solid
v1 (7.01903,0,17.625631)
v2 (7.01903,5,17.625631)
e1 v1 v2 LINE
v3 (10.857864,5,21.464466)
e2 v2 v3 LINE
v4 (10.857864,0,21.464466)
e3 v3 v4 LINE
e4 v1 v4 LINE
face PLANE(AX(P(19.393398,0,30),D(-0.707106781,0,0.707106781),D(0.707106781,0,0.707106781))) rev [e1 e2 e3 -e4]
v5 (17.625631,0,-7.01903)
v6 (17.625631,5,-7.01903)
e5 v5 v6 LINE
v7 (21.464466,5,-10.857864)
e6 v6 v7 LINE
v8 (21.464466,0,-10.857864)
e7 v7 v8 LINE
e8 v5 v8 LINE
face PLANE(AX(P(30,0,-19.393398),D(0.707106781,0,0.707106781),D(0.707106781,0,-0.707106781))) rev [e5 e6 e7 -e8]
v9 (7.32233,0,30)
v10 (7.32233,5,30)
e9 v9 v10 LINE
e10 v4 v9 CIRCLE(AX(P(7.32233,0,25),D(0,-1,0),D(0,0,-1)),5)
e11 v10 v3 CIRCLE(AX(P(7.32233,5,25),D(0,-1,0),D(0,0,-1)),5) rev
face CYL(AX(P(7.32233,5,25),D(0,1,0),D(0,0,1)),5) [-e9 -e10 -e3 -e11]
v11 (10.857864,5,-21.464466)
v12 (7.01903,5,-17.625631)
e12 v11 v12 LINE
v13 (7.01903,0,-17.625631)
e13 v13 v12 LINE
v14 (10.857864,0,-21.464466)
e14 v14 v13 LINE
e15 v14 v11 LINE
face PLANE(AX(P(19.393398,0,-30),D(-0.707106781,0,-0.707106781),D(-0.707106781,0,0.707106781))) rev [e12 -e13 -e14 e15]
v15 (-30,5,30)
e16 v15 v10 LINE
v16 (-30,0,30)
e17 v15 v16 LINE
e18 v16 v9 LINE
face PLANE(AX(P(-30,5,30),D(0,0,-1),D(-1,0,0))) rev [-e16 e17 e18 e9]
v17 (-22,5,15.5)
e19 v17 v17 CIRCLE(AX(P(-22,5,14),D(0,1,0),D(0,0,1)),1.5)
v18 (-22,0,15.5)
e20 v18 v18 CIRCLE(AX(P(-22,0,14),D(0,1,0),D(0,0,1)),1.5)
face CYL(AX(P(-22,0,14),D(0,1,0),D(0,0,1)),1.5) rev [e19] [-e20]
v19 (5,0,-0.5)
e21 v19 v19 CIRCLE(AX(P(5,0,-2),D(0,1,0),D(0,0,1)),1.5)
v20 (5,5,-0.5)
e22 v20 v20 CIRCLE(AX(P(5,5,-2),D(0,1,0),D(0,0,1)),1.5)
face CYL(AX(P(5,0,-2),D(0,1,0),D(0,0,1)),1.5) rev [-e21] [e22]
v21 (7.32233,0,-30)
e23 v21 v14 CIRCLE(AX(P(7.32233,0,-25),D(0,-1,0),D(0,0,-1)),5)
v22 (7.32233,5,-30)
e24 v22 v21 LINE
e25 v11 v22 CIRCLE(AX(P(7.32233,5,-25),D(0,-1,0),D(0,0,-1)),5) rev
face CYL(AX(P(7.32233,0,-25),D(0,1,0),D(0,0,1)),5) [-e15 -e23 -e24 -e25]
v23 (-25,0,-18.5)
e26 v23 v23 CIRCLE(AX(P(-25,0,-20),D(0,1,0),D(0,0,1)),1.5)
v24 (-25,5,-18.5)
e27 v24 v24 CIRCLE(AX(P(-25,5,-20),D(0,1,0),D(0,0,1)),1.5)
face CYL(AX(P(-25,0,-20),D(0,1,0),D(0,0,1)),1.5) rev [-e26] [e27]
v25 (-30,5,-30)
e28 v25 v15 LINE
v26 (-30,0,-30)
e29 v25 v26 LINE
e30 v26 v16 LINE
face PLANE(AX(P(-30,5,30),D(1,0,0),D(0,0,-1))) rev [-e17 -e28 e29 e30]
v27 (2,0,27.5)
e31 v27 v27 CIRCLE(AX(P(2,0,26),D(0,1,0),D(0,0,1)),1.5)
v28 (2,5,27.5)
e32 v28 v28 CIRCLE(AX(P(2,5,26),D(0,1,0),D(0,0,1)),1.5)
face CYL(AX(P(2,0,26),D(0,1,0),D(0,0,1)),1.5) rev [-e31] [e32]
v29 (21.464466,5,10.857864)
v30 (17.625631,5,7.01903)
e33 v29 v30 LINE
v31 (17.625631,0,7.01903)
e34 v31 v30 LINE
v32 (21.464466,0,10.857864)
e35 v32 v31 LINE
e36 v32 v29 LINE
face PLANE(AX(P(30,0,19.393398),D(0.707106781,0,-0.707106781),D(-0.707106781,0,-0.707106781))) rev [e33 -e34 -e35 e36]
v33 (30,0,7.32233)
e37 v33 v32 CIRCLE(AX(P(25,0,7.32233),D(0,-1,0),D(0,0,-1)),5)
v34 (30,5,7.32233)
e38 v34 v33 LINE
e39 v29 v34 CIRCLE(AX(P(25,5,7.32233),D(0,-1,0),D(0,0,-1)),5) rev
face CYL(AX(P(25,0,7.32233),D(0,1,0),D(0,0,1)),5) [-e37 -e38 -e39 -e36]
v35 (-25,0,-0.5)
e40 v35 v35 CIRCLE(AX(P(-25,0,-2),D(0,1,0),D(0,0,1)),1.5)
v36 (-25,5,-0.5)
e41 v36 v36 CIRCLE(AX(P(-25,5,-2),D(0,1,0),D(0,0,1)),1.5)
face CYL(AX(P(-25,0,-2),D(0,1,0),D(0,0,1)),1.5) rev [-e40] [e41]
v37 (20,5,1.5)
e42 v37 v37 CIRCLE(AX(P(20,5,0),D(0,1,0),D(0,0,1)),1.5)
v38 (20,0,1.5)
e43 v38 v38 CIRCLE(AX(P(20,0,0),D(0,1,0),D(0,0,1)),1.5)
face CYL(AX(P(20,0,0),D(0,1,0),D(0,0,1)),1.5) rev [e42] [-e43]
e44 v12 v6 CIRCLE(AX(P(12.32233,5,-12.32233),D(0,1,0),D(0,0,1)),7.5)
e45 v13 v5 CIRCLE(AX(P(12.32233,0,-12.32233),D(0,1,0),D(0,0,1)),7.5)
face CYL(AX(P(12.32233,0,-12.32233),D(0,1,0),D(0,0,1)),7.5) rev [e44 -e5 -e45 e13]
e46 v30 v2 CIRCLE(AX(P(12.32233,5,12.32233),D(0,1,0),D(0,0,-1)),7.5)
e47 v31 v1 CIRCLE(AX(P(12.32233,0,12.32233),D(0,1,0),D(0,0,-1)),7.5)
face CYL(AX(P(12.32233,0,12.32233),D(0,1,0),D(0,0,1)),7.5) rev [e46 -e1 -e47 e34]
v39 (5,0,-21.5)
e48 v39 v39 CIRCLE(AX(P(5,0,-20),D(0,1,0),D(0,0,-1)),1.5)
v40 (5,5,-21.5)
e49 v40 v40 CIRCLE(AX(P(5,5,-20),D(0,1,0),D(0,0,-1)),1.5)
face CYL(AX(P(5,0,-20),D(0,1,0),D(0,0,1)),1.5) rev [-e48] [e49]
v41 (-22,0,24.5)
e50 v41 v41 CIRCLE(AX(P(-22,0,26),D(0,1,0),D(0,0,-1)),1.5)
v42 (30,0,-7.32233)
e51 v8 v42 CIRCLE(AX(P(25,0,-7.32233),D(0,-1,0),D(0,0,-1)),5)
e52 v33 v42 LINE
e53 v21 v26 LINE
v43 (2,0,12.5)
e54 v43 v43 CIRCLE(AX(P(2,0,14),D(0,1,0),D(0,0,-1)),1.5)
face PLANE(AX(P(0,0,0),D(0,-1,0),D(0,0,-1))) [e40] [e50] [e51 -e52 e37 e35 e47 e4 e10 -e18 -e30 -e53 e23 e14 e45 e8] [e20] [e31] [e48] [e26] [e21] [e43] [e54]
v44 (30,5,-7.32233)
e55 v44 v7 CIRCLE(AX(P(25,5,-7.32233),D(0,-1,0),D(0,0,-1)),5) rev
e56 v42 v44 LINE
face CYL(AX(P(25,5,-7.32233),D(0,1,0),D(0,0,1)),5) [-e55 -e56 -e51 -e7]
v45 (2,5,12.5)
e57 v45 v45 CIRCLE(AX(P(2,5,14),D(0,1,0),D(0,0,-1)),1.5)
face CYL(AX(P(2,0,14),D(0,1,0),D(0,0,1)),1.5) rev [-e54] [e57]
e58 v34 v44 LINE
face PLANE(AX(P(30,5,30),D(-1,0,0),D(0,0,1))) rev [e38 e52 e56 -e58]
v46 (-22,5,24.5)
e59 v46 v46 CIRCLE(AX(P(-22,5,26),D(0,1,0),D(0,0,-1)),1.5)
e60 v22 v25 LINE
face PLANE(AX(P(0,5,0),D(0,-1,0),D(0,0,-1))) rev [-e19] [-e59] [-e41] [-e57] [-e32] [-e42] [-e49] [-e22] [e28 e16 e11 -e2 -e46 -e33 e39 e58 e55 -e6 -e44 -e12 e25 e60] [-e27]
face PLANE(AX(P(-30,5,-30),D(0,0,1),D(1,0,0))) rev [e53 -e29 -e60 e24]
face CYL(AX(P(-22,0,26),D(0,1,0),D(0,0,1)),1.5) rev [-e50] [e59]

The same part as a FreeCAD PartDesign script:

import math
import FreeCAD as App
import Part
import Sketcher

V = App.Vector


def edges_at(feature, points):
    """Names of the edges that pass closest to the given points."""
    edges = feature.Shape.Edges
    near = lambda p: min(range(len(edges)), key=lambda i: edges[i].distToShape(Part.Vertex(*p))[0])
    return sorted({f"Edge{near(p) + 1}" for p in points})


def add_polygon(sketch, points):
    """Adds a closed chain of lines whose ends are joined by coincident constraints."""
    first, n = sketch.GeometryCount, len(points)
    for a, b in zip(points, points[1:] + points[:1]):
        sketch.addGeometry(Part.LineSegment(App.Vector(*a, 0), App.Vector(*b, 0)), False)
    for i in range(n):
        sketch.addConstraint(Sketcher.Constraint("Coincident", first + i, 2, first + (i + 1) % n, 1))

doc = App.newDocument("Part")
params = doc.addObject("Spreadsheet::Sheet", "Params")
for row, (alias, value) in enumerate([
    ("sketch1_width", "60 mm"),
    ("pad1_length", "5 mm"),
    ("sketch2_radius", "7.5 mm"),
    ("sketch2_length", "17.5 mm"),
    ("fillet_radius", "5 mm"),
    ("sketch3_diameter", "3 mm"),
], start=1):
    params.set(f"A{row}", alias)
    params.set(f"B{row}", "=" + value)
    params.setAlias(f"B{row}", alias)

body = doc.addObject("PartDesign::Body", "Body")

# Sketch on XZ plane
sketch1 = body.newObject("Sketcher::SketchObject", "Sketch")
sketch1.AttachmentSupport = (doc.getObject("XZ_Plane"), [""])
sketch1.MapMode = "FlatFace"
add_polygon(sketch1, [(-30, -30), (-30, 30), (30, 30), (30, -30)])  # lines 0-3
sketch1.addConstraint([
    Sketcher.Constraint("Vertical", 0),
    Sketcher.Constraint("Horizontal", 1),
    Sketcher.Constraint("Vertical", 2),
    Sketcher.Constraint("Horizontal", 3),
    Sketcher.Constraint("Symmetric", 0, 2, 2, 2, -1, 1),
    Sketcher.Constraint("Equal", 3, 0),
    Sketcher.Constraint("DistanceX", 1, 1, 1, 2, 60.0),
])
sketch1.setExpression("Constraints[10]", "Params.sketch1_width")
pad1 = body.newObject("PartDesign::Pad", "Pad")
pad1.Profile = sketch1
pad1.setExpression("Length", "Params.pad1_length")
pad1.Reversed = True

# Sketch on XZ plane
sketch2 = body.newObject("Sketcher::SketchObject", "Sketch001")
sketch2.AttachmentSupport = (doc.getObject("XZ_Plane"), [""])
sketch2.MapMode = "FlatFace"
sketch2.AttachmentOffset = App.Placement(V(0, 0, -5), App.Rotation())
sketch2.addGeometry([
    Part.LineSegment(V(19, -30, 0), V(7, -18, 0)),  # 0
    Part.ArcOfCircle(Part.Circle(V(12, -12, 0), V(0, 0, 1), 8), math.radians(45), math.radians(225)),  # 1
    Part.LineSegment(V(18, -7, 0), V(30, -19, 0)),  # 2
    Part.LineSegment(V(30, -19, 0), V(30, -30, 0)),  # 3
    Part.LineSegment(V(30, -30, 0), V(19, -30, 0)),  # 4
    Part.LineSegment(V(19, 30, 0), V(30, 30, 0)),  # 5
    Part.LineSegment(V(30, 30, 0), V(30, 19, 0)),  # 6
    Part.LineSegment(V(30, 19, 0), V(18, 7, 0)),  # 7
    Part.ArcOfCircle(Part.Circle(V(12, 12, 0), V(0, 0, 1), 8), math.radians(135), math.radians(315)),  # 8
    Part.LineSegment(V(7, 18, 0), V(19, 30, 0)),  # 9
], False)
sketch2.addConstraint([
    Sketcher.Constraint("Tangent", 0, 2, 1, 2),
    Sketcher.Constraint("Tangent", 1, 1, 2, 1),
    Sketcher.Constraint("Coincident", 2, 2, 3, 1),
    Sketcher.Constraint("Coincident", 3, 2, 4, 1),
    Sketcher.Constraint("Coincident", 4, 2, 0, 1),
    Sketcher.Constraint("Coincident", 5, 2, 6, 1),
    Sketcher.Constraint("Coincident", 6, 2, 7, 1),
    Sketcher.Constraint("Tangent", 7, 2, 8, 2),
    Sketcher.Constraint("Tangent", 8, 1, 9, 1),
    Sketcher.Constraint("Coincident", 9, 2, 5, 1),
    Sketcher.Constraint("Vertical", 3),
    Sketcher.Constraint("Horizontal", 4),
    Sketcher.Constraint("Horizontal", 5),
    Sketcher.Constraint("Vertical", 6),
    Sketcher.Constraint("Equal", 1, 8),
    Sketcher.Constraint("Symmetric", 1, 3, 8, 3, -1),
    Sketcher.Constraint("Symmetric", 3, 2, 5, 2, -1),
    Sketcher.Constraint("Parallel", 0, 2),
    Sketcher.Constraint("Perpendicular", 2, 7),
    Sketcher.Constraint("Parallel", 7, 9),
    Sketcher.Constraint("Vertical", 1, 1, 7, 2),
    Sketcher.Constraint("Equal", 5, 3),
    Sketcher.Constraint("Radius", 1, 7.5),
    Sketcher.Constraint("DistanceX", -1, 1, 2, 2, 30.0),
    Sketcher.Constraint("DistanceY", 3, 2, -1, 1, 30.0),
    Sketcher.Constraint("Distance", 0, 17.5),
])
sketch2.setExpression("Constraints[22]", "Params.sketch2_radius")
sketch2.setExpression("Constraints[25]", "Params.sketch2_length")
pocket1 = body.newObject("PartDesign::Pocket", "Pocket")
pocket1.Profile = sketch2
pocket1.Type = "ThroughAll"
pocket1.Reversed = True
doc.recompute()

fillet = body.newObject("PartDesign::Fillet", "Fillet")
fillet.Base = (pocket1, edges_at(pocket1, [
    (30, 2.5, -19.393),
    (19.393, 2.5, -30),
    (19.393, 2.5, 30),
    (30, 2.5, 19.393),
]))
fillet.setExpression("Radius", "Params.fillet_radius")

# Sketch on XZ plane
sketch3 = body.newObject("Sketcher::SketchObject", "Sketch002")
sketch3.AttachmentSupport = (doc.getObject("XZ_Plane"), [""])
sketch3.MapMode = "FlatFace"
sketch3.AttachmentOffset = App.Placement(V(0, 0, -5), App.Rotation())
sketch3.addGeometry([
    Part.Circle(V(20, 0, 0), V(0, 0, 1), 1.5),  # 0
    Part.Circle(V(-22, 14, 0), V(0, 0, 1), 1.5),  # 1
    Part.Circle(V(2, 14, 0), V(0, 0, 1), 1.5),  # 2
    Part.Circle(V(2, 26, 0), V(0, 0, 1), 1.5),  # 3
    Part.Circle(V(-22, 26, 0), V(0, 0, 1), 1.5),  # 4
    Part.Circle(V(-25, -20, 0), V(0, 0, 1), 1.5),  # 5
    Part.Circle(V(5, -20, 0), V(0, 0, 1), 1.5),  # 6
    Part.Circle(V(-25, -2, 0), V(0, 0, 1), 1.5),  # 7
    Part.Circle(V(5, -2, 0), V(0, 0, 1), 1.5),  # 8
], False)
sketch3.addConstraint([
    Sketcher.Constraint("Equal", 0, 1),
    Sketcher.Constraint("Equal", 1, 2),
    Sketcher.Constraint("Equal", 2, 3),
    Sketcher.Constraint("Equal", 3, 4),
    Sketcher.Constraint("Equal", 4, 5),
    Sketcher.Constraint("Equal", 5, 6),
    Sketcher.Constraint("Equal", 6, 7),
    Sketcher.Constraint("Equal", 7, 8),
    Sketcher.Constraint("PointOnObject", 0, 3, -1),
    Sketcher.Constraint("Horizontal", 1, 3, 2, 3),
    Sketcher.Constraint("Horizontal", 3, 3, 4, 3),
    Sketcher.Constraint("Horizontal", 5, 3, 6, 3),
    Sketcher.Constraint("Horizontal", 7, 3, 8, 3),
    Sketcher.Constraint("Vertical", 2, 3, 3, 3),
    Sketcher.Constraint("Vertical", 1, 3, 4, 3),
    Sketcher.Constraint("Vertical", 5, 3, 7, 3),
    Sketcher.Constraint("Vertical", 6, 3, 8, 3),
    Sketcher.Constraint("Diameter", 0, 3.0),
    Sketcher.Constraint("DistanceX", -1, 1, 0, 3, 20.0),
    Sketcher.Constraint("DistanceX", 1, 3, -1, 1, 22.0),
    Sketcher.Constraint("DistanceY", -1, 1, 1, 3, 14.0),
    Sketcher.Constraint("DistanceX", -1, 1, 2, 3, 2.0),
    Sketcher.Constraint("DistanceY", -1, 1, 3, 3, 26.0),
    Sketcher.Constraint("DistanceX", 5, 3, -1, 1, 25.0),
    Sketcher.Constraint("DistanceY", 5, 3, -1, 1, 20.0),
    Sketcher.Constraint("DistanceX", -1, 1, 6, 3, 5.0),
    Sketcher.Constraint("DistanceY", 7, 3, -1, 1, 2.0),
])
sketch3.setExpression("Constraints[17]", "Params.sketch3_diameter")
pocket2 = body.newObject("PartDesign::Pocket", "Pocket001")
pocket2.Profile = sketch3
pocket2.Type = "ThroughAll"
pocket2.Reversed = True

doc.recompute()
